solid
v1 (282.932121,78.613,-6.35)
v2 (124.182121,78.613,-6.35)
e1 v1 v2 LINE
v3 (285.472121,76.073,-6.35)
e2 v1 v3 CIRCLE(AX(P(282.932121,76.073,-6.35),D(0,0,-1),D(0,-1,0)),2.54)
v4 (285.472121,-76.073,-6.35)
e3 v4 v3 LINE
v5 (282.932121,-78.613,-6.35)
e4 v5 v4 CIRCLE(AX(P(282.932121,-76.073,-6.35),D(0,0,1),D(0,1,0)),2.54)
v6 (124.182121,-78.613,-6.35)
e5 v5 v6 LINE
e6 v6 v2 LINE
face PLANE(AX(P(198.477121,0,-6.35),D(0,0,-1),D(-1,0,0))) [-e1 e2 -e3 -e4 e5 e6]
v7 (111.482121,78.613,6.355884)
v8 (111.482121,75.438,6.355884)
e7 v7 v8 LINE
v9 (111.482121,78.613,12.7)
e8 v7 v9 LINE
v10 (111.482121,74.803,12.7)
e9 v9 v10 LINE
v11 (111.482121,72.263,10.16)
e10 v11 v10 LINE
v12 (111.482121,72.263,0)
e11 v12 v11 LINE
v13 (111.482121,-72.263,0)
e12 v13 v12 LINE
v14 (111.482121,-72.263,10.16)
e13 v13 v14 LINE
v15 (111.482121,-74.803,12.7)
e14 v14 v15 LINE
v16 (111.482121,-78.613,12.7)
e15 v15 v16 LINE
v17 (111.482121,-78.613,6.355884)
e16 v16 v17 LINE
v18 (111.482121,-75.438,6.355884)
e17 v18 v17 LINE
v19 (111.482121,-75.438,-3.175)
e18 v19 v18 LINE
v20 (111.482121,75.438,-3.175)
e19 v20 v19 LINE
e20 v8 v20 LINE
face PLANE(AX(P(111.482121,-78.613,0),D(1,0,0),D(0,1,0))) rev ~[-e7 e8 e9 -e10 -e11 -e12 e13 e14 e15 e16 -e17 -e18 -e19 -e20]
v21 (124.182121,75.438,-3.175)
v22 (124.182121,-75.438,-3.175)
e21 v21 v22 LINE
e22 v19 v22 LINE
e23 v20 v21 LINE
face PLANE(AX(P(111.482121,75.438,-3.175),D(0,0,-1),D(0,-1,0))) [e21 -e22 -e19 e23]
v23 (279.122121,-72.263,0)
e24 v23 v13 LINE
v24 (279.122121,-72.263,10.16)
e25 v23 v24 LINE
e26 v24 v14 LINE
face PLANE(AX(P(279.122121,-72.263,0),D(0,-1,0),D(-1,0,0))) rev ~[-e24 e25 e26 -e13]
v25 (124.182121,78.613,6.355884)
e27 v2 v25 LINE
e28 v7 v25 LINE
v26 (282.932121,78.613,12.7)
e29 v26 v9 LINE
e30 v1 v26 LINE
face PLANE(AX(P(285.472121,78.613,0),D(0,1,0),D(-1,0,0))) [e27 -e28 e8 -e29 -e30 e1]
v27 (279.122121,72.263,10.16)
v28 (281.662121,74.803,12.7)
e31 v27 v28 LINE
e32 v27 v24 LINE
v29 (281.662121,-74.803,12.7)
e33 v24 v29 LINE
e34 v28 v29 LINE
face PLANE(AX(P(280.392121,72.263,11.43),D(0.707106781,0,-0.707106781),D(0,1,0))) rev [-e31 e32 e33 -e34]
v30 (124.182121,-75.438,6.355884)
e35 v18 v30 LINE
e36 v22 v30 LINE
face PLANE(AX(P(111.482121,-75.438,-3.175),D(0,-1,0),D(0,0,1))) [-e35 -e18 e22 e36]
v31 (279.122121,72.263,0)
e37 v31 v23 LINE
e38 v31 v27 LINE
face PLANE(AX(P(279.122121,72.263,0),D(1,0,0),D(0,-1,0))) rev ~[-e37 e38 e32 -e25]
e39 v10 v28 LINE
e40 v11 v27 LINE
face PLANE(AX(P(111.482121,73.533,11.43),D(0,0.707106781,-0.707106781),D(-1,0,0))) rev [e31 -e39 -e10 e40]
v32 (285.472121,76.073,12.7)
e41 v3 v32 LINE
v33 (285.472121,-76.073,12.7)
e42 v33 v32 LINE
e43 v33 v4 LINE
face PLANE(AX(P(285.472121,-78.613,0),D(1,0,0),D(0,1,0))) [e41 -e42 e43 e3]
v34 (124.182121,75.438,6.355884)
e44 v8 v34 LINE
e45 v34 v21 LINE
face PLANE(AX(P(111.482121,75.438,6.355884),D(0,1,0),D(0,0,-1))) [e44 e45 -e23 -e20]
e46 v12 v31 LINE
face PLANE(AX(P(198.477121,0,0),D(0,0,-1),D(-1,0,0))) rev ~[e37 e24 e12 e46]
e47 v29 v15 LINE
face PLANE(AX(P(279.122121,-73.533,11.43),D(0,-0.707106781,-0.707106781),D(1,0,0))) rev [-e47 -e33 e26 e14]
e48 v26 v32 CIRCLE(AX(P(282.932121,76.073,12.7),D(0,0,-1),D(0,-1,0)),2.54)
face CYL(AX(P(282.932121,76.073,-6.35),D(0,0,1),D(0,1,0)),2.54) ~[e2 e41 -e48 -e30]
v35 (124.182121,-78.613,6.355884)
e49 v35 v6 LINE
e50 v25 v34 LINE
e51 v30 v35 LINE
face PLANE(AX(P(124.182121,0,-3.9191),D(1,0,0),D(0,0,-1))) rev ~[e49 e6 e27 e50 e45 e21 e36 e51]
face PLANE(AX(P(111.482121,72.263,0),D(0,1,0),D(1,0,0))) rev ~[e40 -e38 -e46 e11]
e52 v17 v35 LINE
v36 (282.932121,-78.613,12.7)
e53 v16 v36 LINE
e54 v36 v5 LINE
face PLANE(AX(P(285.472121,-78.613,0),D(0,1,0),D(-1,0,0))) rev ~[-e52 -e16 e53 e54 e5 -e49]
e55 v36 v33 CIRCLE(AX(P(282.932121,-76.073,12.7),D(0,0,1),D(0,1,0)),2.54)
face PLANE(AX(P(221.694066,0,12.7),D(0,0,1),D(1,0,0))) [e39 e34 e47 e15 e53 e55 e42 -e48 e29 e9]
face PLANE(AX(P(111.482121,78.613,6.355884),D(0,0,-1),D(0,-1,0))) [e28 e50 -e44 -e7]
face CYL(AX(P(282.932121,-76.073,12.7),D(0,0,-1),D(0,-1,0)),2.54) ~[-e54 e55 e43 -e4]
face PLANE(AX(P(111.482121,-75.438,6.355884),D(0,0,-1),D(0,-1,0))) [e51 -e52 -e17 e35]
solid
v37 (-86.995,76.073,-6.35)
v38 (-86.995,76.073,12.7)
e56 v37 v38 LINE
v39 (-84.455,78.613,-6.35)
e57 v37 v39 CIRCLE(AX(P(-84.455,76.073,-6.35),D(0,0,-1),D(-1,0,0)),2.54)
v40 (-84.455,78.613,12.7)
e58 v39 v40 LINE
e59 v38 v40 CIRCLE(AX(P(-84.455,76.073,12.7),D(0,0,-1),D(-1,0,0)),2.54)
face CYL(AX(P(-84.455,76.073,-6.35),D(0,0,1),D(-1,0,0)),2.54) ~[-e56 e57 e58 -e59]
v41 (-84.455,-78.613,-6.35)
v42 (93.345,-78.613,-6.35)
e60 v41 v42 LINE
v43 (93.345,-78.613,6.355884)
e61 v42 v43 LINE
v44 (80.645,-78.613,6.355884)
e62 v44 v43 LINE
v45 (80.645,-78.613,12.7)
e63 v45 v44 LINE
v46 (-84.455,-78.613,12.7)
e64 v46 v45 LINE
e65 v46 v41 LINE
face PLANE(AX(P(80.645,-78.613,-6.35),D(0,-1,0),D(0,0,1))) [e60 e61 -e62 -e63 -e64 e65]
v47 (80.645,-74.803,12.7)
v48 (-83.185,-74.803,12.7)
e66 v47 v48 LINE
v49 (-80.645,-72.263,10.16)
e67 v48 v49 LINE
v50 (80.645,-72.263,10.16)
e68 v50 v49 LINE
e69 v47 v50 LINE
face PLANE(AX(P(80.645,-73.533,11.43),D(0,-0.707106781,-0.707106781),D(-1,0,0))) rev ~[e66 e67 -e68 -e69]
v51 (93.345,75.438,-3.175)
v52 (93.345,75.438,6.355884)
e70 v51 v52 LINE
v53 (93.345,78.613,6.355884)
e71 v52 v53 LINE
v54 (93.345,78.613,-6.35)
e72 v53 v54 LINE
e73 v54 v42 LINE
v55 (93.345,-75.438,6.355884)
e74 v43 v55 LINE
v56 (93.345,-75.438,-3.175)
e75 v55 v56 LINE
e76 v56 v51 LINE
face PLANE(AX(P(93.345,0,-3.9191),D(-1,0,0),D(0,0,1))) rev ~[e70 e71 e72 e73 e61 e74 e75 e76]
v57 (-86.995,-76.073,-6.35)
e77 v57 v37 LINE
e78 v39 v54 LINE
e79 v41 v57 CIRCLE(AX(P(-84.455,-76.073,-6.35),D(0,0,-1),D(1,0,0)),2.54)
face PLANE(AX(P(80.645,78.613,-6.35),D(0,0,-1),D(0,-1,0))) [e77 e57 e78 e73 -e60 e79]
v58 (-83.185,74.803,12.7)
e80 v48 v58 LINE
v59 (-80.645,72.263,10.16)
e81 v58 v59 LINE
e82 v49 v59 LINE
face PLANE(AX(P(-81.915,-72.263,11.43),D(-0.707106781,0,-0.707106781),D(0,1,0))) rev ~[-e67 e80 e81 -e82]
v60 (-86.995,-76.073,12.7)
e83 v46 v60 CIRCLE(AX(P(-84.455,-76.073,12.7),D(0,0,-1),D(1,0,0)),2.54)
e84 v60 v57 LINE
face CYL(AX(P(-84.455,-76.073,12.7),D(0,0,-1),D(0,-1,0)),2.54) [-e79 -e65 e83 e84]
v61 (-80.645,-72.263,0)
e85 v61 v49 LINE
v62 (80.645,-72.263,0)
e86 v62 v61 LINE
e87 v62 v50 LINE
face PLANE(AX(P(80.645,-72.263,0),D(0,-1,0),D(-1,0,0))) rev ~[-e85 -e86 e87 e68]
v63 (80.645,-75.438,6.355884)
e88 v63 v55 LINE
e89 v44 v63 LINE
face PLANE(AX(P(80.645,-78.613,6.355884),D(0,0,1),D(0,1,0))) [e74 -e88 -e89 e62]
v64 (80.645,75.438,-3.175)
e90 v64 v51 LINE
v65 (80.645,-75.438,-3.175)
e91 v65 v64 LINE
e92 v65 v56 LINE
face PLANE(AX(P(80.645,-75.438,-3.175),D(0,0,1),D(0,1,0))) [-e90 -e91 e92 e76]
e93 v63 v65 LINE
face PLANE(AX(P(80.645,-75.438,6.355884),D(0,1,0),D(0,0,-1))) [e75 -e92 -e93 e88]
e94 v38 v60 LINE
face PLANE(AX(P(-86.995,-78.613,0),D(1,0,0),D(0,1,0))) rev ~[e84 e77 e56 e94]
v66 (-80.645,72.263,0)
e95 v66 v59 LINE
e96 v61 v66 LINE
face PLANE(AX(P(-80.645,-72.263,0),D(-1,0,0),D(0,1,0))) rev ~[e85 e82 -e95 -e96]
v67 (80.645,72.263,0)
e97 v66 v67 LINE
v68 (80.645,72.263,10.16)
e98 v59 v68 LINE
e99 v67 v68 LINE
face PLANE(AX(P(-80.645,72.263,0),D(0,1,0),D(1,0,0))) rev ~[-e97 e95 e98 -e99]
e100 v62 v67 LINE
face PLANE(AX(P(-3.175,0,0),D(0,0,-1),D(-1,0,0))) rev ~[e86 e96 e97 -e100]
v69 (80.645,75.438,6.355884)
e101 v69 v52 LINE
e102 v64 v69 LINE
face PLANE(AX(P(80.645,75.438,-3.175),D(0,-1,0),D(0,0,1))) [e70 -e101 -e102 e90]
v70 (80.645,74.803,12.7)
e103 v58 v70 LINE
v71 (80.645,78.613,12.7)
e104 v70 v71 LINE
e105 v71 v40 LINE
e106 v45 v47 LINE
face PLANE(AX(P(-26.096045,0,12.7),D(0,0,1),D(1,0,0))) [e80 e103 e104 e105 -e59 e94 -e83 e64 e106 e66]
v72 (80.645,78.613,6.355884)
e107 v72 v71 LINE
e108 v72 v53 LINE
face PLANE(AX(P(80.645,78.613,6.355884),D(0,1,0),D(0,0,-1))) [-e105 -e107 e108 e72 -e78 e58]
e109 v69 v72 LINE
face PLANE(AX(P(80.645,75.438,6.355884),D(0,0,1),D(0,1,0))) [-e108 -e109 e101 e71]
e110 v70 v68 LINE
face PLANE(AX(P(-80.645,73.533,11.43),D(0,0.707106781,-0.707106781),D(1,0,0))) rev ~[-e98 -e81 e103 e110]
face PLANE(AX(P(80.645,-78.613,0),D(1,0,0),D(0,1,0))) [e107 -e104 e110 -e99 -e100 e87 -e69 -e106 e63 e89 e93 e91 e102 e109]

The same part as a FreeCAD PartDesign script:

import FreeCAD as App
import Part
import Sketcher
from FreeCAD import Vector
Q = App.Units.Quantity


def edges_at(feature, points):
    """Names of the edges that pass closest to the given points."""
    edges = feature.Shape.Edges
    near = lambda p: min(range(len(edges)), key=lambda i: edges[i].distToShape(Part.Vertex(*p))[0])
    return sorted({f"Edge{near(p) + 1}" for p in points})

doc = App.newDocument("Part")
body = doc.addObject("PartDesign::Body", "Body")

sketch1 = body.newObject("Sketcher::SketchObject", "Sketch")
sketch1.AttachmentSupport = (doc.getObject("XY_Plane"), [""])
sketch1.MapMode = "FlatFace"
sketch1.addGeometry([
    Part.LineSegment(Vector(-81, 72, 0), Vector(81, 72, 0)),
    Part.LineSegment(Vector(81, 72, 0), Vector(81, 79, 0)),
    Part.LineSegment(Vector(81, 79, 0), Vector(-87, 79, 0)),
    Part.LineSegment(Vector(-87, 79, 0), Vector(-87, -79, 0)),
    Part.LineSegment(Vector(-87, -79, 0), Vector(81, -79, 0)),
    Part.LineSegment(Vector(81, -79, 0), Vector(81, -72, 0)),
    Part.LineSegment(Vector(81, -72, 0), Vector(-81, -72, 0)),
    Part.LineSegment(Vector(-81, -72, 0), Vector(-81, 72, 0)),
], False)
sketch1.addConstraint([
    Sketcher.Constraint("Coincident", 0, 2, 1, 1),
    Sketcher.Constraint("Coincident", 1, 2, 2, 1),
    Sketcher.Constraint("Coincident", 2, 2, 3, 1),
    Sketcher.Constraint("Coincident", 3, 2, 4, 1),
    Sketcher.Constraint("Coincident", 4, 2, 5, 1),
    Sketcher.Constraint("Coincident", 5, 2, 6, 1),
    Sketcher.Constraint("Coincident", 6, 2, 7, 1),
    Sketcher.Constraint("Coincident", 7, 2, 0, 1),
    Sketcher.Constraint("Horizontal", 0),
    Sketcher.Constraint("Vertical", 1),
    Sketcher.Constraint("Horizontal", 2),
    Sketcher.Constraint("Vertical", 3),
    Sketcher.Constraint("Horizontal", 4),
    Sketcher.Constraint("Vertical", 5),
    Sketcher.Constraint("Horizontal", 6),
    Sketcher.Constraint("Vertical", 7),
    Sketcher.Constraint("Symmetric", 0, 2, 6, 2, -1, 1),
    Sketcher.Constraint("Symmetric", 1, 2, 4, 2, -1),
    Sketcher.Constraint("DistanceX", 2, 2, 2, 1, Q("6.6 in")),
    Sketcher.Constraint("DistanceX", 0, 1, 0, 2, Q("6.35 in")),
    Sketcher.Constraint("DistanceY", 1, 1, 1, 2, Q("0.25 in")),
    Sketcher.Constraint("DistanceY", 3, 2, 3, 1, Q("6.19 in")),
])
pad1 = body.newObject("PartDesign::Pad", "Pad")
pad1.Profile = sketch1
pad1.Length = Q("0.5 in")

sketch2 = body.newObject("Sketcher::SketchObject", "Sketch001")
sketch2.AttachmentSupport = (doc.getObject("XY_Plane"), [""])
sketch2.MapMode = "FlatFace"
sketch2.addGeometry([
    Part.LineSegment(Vector(81, 79, 0), Vector(81, -79, 0)),
    Part.LineSegment(Vector(81, -79, 0), Vector(-87, -79, 0)),
    Part.LineSegment(Vector(-87, -79, 0), Vector(-87, 79, 0)),
    Part.LineSegment(Vector(-87, 79, 0), Vector(81, 79, 0)),
], False)
sketch2.addConstraint([
    Sketcher.Constraint("Coincident", 0, 2, 1, 1),
    Sketcher.Constraint("Coincident", 1, 2, 2, 1),
    Sketcher.Constraint("Coincident", 2, 2, 3, 1),
    Sketcher.Constraint("Coincident", 3, 2, 0, 1),
    Sketcher.Constraint("Vertical", 0),
    Sketcher.Constraint("Horizontal", 1),
    Sketcher.Constraint("Vertical", 2),
    Sketcher.Constraint("Horizontal", 3),
    Sketcher.Constraint("DistanceX", 1, 2, 1, 1, Q("6.6 in")),
    Sketcher.Constraint("DistanceY", 0, 2, 0, 1, Q("6.19 in")),
    Sketcher.Constraint("DistanceX", -1, 1, 0, 2, Q("3.175 in")),
    Sketcher.Constraint("DistanceY", 0, 2, -1, 1, Q("3.095 in")),
])
pad2 = body.newObject("PartDesign::Pad", "Pad001")
pad2.Profile = sketch2
pad2.Length = Q("0.25 in")
pad2.Reversed = True
doc.recompute()

fillet = body.newObject("PartDesign::Fillet", "Fillet")
fillet.Base = (pad2, edges_at(pad2, [(-86.995, -78.613, 3.175), (-86.995, 78.613, 3.175)]))
fillet.Radius = Q("0.1 in")
doc.recompute()

chamfer = body.newObject("PartDesign::Chamfer", "Chamfer")
chamfer.Base = (fillet, edges_at(fillet, [(0, -72.263, 12.7), (-80.645, 0, 12.7), (0, 72.263, 12.7)]))
chamfer.Size = Q("0.1 in")

sketch3 = body.newObject("Sketcher::SketchObject", "Sketch002")
sketch3.AttachmentSupport = (doc.getObject("YZ_Plane"), [""])
sketch3.MapMode = "FlatFace"
sketch3.AttachmentOffset = App.Placement(Vector(0, 0, 3.175 * 25.4), App.Rotation())
sketch3.addGeometry([
    Part.LineSegment(Vector(-78.6, 6.4, 0), Vector(-78.6, -6.3, 0)),
    Part.LineSegment(Vector(-78.6, -6.3, 0), Vector(78.6, -6.3, 0)),
    Part.LineSegment(Vector(78.6, -6.3, 0), Vector(78.6, 6.4, 0)),
    Part.LineSegment(Vector(78.6, 6.4, 0), Vector(75.4, 6.4, 0)),
    Part.LineSegment(Vector(75.4, 6.4, 0), Vector(75.4, -3.2, 0)),
    Part.LineSegment(Vector(75.4, -3.2, 0), Vector(-75.4, -3.2, 0)),
    Part.LineSegment(Vector(-75.4, -3.2, 0), Vector(-75.4, 6.4, 0)),
    Part.LineSegment(Vector(-75.4, 6.4, 0), Vector(-78.6, 6.4, 0)),
], False)
sketch3.addConstraint([
    Sketcher.Constraint("Coincident", 0, 2, 1, 1),
    Sketcher.Constraint("Coincident", 1, 2, 2, 1),
    Sketcher.Constraint("Coincident", 2, 2, 3, 1),
    Sketcher.Constraint("Coincident", 3, 2, 4, 1),
    Sketcher.Constraint("Coincident", 4, 2, 5, 1),
    Sketcher.Constraint("Coincident", 5, 2, 6, 1),
    Sketcher.Constraint("Coincident", 6, 2, 7, 1),
    Sketcher.Constraint("Coincident", 7, 2, 0, 1),
    Sketcher.Constraint("Vertical", 0),
    Sketcher.Constraint("Horizontal", 1),
    Sketcher.Constraint("Vertical", 2),
    Sketcher.Constraint("Horizontal", 3),
    Sketcher.Constraint("Vertical", 4),
    Sketcher.Constraint("Horizontal", 5),
    Sketcher.Constraint("Vertical", 6),
    Sketcher.Constraint("Horizontal", 7),
    Sketcher.Constraint("Symmetric", 3, 2, 6, 2, -2),
    Sketcher.Constraint("Equal", 3, 7),
    Sketcher.Constraint("DistanceX", 1, 1, 1, 2, Q("6.19 in")),
    Sketcher.Constraint("DistanceX", 5, 2, 5, 1, Q("5.94 in")),
    Sketcher.Constraint("DistanceY", 0, 2, -1, 1, Q("0.25 in")),
    Sketcher.Constraint("DistanceY", 4, 2, -1, 1, Q("0.125 in")),
    Sketcher.Constraint("DistanceY", 0, 2, 0, 1, 12.705884),
])
pad3 = body.newObject("PartDesign::Pad", "Pad002")
pad3.Profile = sketch3
pad3.Length = Q("0.5 in")
body2 = doc.addObject("PartDesign::Body", "Body001")

sketch4 = body2.newObject("Sketcher::SketchObject", "Sketch003")
sketch4.AttachmentSupport = (doc.getObject("XY_Plane001"), [""])
sketch4.MapMode = "FlatFace"
sketch4.addGeometry([
    Part.LineSegment(Vector(285, 79, 0), Vector(111, 79, 0)),
    Part.LineSegment(Vector(111, 79, 0), Vector(111, 72, 0)),
    Part.LineSegment(Vector(111, 72, 0), Vector(279, 72, 0)),
    Part.LineSegment(Vector(279, 72, 0), Vector(279, -72, 0)),
    Part.LineSegment(Vector(279, -72, 0), Vector(111, -72, 0)),
    Part.LineSegment(Vector(111, -72, 0), Vector(111, -79, 0)),
    Part.LineSegment(Vector(111, -79, 0), Vector(285, -79, 0)),
    Part.LineSegment(Vector(285, -79, 0), Vector(285, 79, 0)),
], False)
sketch4.addConstraint([
    Sketcher.Constraint("Coincident", 0, 2, 1, 1),
    Sketcher.Constraint("Coincident", 1, 2, 2, 1),
    Sketcher.Constraint("Coincident", 2, 2, 3, 1),
    Sketcher.Constraint("Coincident", 3, 2, 4, 1),
    Sketcher.Constraint("Coincident", 4, 2, 5, 1),
    Sketcher.Constraint("Coincident", 5, 2, 6, 1),
    Sketcher.Constraint("Coincident", 6, 2, 7, 1),
    Sketcher.Constraint("Coincident", 7, 2, 0, 1),
    Sketcher.Constraint("Horizontal", 0),
    Sketcher.Constraint("Vertical", 1),
    Sketcher.Constraint("Horizontal", 2),
    Sketcher.Constraint("Vertical", 3),
    Sketcher.Constraint("Horizontal", 4),
    Sketcher.Constraint("Vertical", 5),
    Sketcher.Constraint("Horizontal", 6),
    Sketcher.Constraint("Vertical", 7),
    Sketcher.Constraint("Symmetric", 1, 2, 4, 2, -1),
    Sketcher.Constraint("Equal", 1, 5),
    Sketcher.Constraint("DistanceX", 2, 1, 2, 2, Q("6.6 in")),
    Sketcher.Constraint("DistanceX", 0, 2, 0, 1, Q("6.85 in")),
    Sketcher.Constraint("DistanceY", 1, 2, 1, 1, Q("0.25 in")),
    Sketcher.Constraint("DistanceY", 3, 2, 3, 1, Q("5.69 in")),
    Sketcher.Constraint("DistanceX", -1, 1, 0, 2, 111.482121),
])
pad4 = body2.newObject("PartDesign::Pad", "Pad003")
pad4.Profile = sketch4
pad4.Length = Q("0.5 in")

sketch5 = body2.newObject("Sketcher::SketchObject", "Sketch004")
sketch5.AttachmentSupport = (doc.getObject("XY_Plane001"), [""])
sketch5.MapMode = "FlatFace"
sketch5.addGeometry([
    Part.LineSegment(Vector(285, 79, 0), Vector(285, -79, 0)),
    Part.LineSegment(Vector(285, -79, 0), Vector(111, -79, 0)),
    Part.LineSegment(Vector(111, -79, 0), Vector(111, 79, 0)),
    Part.LineSegment(Vector(111, 79, 0), Vector(285, 79, 0)),
], False)
sketch5.addConstraint([
    Sketcher.Constraint("Coincident", 0, 2, 1, 1),
    Sketcher.Constraint("Coincident", 1, 2, 2, 1),
    Sketcher.Constraint("Coincident", 2, 2, 3, 1),
    Sketcher.Constraint("Coincident", 3, 2, 0, 1),
    Sketcher.Constraint("Vertical", 0),
    Sketcher.Constraint("Horizontal", 1),
    Sketcher.Constraint("Vertical", 2),
    Sketcher.Constraint("Horizontal", 3),
    Sketcher.Constraint("DistanceX", 1, 2, 1, 1, Q("6.85 in")),
    Sketcher.Constraint("DistanceY", 0, 2, 0, 1, Q("6.19 in")),
    Sketcher.Constraint("DistanceY", 0, 2, -1, 1, Q("3.095 in")),
    Sketcher.Constraint("DistanceX", -1, 1, 0, 2, 285.472121),
])
pad5 = body2.newObject("PartDesign::Pad", "Pad004")
pad5.Profile = sketch5
pad5.Length = Q("0.25 in")
pad5.Reversed = True
doc.recompute()

chamfer2 = body2.newObject("PartDesign::Chamfer", "Chamfer001")
chamfer2.Base = (pad5, edges_at(pad5, [(279.122, 0, 12.7), (195.302, -72.263, 12.7), (195.302, 72.263, 12.7)]))
chamfer2.Size = Q("0.1 in")
doc.recompute()

fillet2 = body2.newObject("PartDesign::Fillet", "Fillet001")
fillet2.Base = (chamfer2, edges_at(chamfer2, [(285.472, 78.613, 3.175), (285.472, -78.613, 3.175)]))
fillet2.Radius = Q("0.1 in")

sketch6 = body2.newObject("Sketcher::SketchObject", "Sketch005")
sketch6.AttachmentSupport = (doc.getObject("YZ_Plane001"), [""])
sketch6.MapMode = "FlatFace"
sketch6.AttachmentOffset = App.Placement(Vector(0, 0, 111.482121), App.Rotation())
sketch6.addGeometry([
    Part.LineSegment(Vector(78.6, 6.4, 0), Vector(78.6, -6.3, 0)),
    Part.LineSegment(Vector(78.6, -6.3, 0), Vector(-78.6, -6.3, 0)),
    Part.LineSegment(Vector(-78.6, -6.3, 0), Vector(-78.6, 6.4, 0)),
    Part.LineSegment(Vector(-78.6, 6.4, 0), Vector(-75.4, 6.4, 0)),
    Part.LineSegment(Vector(-75.4, 6.4, 0), Vector(-75.4, -3.2, 0)),
    Part.LineSegment(Vector(-75.4, -3.2, 0), Vector(75.4, -3.2, 0)),
    Part.LineSegment(Vector(75.4, -3.2, 0), Vector(75.4, 6.4, 0)),
    Part.LineSegment(Vector(75.4, 6.4, 0), Vector(78.6, 6.4, 0)),
], False)
sketch6.addConstraint([
    Sketcher.Constraint("Coincident", 0, 2, 1, 1),
    Sketcher.Constraint("Coincident", 1, 2, 2, 1),
    Sketcher.Constraint("Coincident", 2, 2, 3, 1),
    Sketcher.Constraint("Coincident", 3, 2, 4, 1),
    Sketcher.Constraint("Coincident", 4, 2, 5, 1),
    Sketcher.Constraint("Coincident", 5, 2, 6, 1),
    Sketcher.Constraint("Coincident", 6, 2, 7, 1),
    Sketcher.Constraint("Coincident", 7, 2, 0, 1),
    Sketcher.Constraint("Vertical", 0),
    Sketcher.Constraint("Horizontal", 1),
    Sketcher.Constraint("Vertical", 2),
    Sketcher.Constraint("Horizontal", 3),
    Sketcher.Constraint("Vertical", 4),
    Sketcher.Constraint("Horizontal", 5),
    Sketcher.Constraint("Vertical", 6),
    Sketcher.Constraint("Horizontal", 7),
    Sketcher.Constraint("Symmetric", 3, 2, 6, 2, -2),
    Sketcher.Constraint("Equal", 3, 7),
    Sketcher.Constraint("DistanceX", 1, 2, 1, 1, Q("6.19 in")),
    Sketcher.Constraint("DistanceX", 5, 1, 5, 2, Q("5.94 in")),
    Sketcher.Constraint("DistanceY", 0, 2, -1, 1, Q("0.25 in")),
    Sketcher.Constraint("DistanceY", 4, 2, -1, 1, Q("0.125 in")),
    Sketcher.Constraint("DistanceY", 0, 2, 0, 1, 12.705884),
])
pocket1 = body2.newObject("PartDesign::Pocket", "Pocket")
pocket1.Profile = sketch6
pocket1.Length = Q("0.5 in")
pocket1.Reversed = True

doc.recompute()
